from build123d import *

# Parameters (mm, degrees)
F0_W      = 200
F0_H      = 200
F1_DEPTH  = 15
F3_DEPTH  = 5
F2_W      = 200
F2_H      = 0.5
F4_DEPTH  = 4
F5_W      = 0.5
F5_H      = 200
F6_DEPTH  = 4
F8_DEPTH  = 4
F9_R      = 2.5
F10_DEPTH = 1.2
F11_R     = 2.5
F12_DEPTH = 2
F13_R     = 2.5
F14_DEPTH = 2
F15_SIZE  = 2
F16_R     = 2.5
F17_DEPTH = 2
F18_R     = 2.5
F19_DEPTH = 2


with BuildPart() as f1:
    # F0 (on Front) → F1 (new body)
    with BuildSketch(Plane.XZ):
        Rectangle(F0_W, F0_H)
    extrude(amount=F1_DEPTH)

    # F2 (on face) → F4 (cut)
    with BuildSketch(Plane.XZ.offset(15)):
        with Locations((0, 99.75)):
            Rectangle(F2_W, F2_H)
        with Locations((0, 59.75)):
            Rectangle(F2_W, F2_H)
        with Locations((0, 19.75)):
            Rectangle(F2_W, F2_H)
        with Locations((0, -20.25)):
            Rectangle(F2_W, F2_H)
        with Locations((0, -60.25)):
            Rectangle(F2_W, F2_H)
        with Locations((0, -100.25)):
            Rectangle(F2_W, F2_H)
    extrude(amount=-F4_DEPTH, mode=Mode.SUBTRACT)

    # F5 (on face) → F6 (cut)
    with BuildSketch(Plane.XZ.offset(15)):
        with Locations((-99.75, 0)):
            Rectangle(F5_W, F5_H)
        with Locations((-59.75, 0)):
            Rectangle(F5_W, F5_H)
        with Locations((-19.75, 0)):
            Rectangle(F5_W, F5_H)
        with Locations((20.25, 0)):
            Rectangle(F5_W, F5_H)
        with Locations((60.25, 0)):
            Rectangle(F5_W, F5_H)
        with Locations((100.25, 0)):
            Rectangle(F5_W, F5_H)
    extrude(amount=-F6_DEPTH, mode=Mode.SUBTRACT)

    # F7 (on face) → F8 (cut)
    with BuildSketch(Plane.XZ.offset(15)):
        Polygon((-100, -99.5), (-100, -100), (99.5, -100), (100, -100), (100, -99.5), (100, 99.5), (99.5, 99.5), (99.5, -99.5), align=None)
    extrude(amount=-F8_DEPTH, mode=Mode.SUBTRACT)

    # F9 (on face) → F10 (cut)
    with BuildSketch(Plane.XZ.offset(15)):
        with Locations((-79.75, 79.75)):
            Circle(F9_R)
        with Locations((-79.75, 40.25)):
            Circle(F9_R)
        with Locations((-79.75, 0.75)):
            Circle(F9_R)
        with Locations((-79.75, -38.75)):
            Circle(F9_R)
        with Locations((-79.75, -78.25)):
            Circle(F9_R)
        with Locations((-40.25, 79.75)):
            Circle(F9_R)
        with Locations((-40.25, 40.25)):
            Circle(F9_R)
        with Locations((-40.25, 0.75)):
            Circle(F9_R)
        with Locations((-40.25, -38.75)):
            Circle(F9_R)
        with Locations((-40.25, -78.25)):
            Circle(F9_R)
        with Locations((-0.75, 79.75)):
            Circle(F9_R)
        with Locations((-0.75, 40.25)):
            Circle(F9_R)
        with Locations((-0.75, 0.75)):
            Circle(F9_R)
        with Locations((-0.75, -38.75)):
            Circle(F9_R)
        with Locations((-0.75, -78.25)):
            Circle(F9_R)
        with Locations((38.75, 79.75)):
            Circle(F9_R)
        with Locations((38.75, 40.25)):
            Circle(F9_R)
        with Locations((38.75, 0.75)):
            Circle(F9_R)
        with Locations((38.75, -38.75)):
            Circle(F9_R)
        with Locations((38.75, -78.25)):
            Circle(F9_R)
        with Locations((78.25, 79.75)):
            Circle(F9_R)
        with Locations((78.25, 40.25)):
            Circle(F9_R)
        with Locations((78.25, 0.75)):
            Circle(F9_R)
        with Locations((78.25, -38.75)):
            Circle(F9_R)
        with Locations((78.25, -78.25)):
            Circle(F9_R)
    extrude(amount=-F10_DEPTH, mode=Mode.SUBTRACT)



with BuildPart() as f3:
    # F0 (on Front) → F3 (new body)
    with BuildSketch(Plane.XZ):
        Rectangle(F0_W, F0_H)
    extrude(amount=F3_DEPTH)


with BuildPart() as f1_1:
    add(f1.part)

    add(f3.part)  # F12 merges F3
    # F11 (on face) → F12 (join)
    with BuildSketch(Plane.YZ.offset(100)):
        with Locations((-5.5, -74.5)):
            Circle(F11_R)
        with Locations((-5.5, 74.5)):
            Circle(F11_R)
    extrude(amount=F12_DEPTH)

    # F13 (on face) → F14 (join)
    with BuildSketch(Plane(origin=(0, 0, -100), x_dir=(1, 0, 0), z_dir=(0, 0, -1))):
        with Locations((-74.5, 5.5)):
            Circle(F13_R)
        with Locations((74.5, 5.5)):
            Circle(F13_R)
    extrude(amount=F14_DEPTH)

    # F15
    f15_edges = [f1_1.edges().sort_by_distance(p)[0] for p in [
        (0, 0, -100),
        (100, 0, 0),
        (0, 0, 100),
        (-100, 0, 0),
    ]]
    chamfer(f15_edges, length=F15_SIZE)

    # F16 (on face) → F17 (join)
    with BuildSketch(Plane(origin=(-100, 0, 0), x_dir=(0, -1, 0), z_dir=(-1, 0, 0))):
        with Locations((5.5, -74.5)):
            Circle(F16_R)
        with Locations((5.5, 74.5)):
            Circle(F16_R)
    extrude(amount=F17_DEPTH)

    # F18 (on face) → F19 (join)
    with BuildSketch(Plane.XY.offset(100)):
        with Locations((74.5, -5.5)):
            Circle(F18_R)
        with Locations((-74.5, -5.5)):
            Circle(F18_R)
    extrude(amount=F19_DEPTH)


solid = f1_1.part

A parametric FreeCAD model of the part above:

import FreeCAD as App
import Part
import Sketcher

V = App.Vector


def edges_at(feature, points):
    """Names of the edges that pass closest to the given points."""
    edges = feature.Shape.Edges
    near = lambda p: min(range(len(edges)), key=lambda i: edges[i].distToShape(Part.Vertex(*p))[0])
    return sorted({f"Edge{near(p) + 1}" for p in points})


def add_polygon(sketch, points):
    """Adds a closed chain of lines whose ends are joined by coincident constraints."""
    first, n = sketch.GeometryCount, len(points)
    for a, b in zip(points, points[1:] + points[:1]):
        sketch.addGeometry(Part.LineSegment(App.Vector(*a, 0), App.Vector(*b, 0)), False)
    for i in range(n):
        sketch.addConstraint(Sketcher.Constraint("Coincident", first + i, 2, first + (i + 1) % n, 1))

doc = App.newDocument("Part")
params = doc.addObject("Spreadsheet::Sheet", "Params")
for row, (alias, value) in enumerate([
    ("sketch1_width", "200 mm"),
    ("pad1_length", "15 mm"),
    ("sketch2_width", "200 mm"),
    ("sketch2_height", "0.5 mm"),
    ("pocket1_length", "4 mm"),
    ("sketch3_height", "200 mm"),
    ("sketch3_width", "0.5 mm"),
    ("pocket2_length", "4 mm"),
    ("sketch4_width", "200 mm"),
    ("sketch4_height", "199 mm"),
    ("pocket3_length", "4 mm"),
    ("sketch5_diameter", "5 mm"),
    ("pocket4_length", "1.2 mm"),
    ("sketch6_width", "200 mm"),
    ("pad2_length", "5 mm"),
    ("sketch7_diameter", "5 mm"),
    ("pad3_length", "2 mm"),
    ("sketch8_diameter", "5 mm"),
    ("pad4_length", "2 mm"),
    ("chamfer_size", "2 mm"),
    ("sketch9_diameter", "5 mm"),
    ("pad5_length", "2 mm"),
    ("sketch10_diameter", "5 mm"),
    ("pad6_length", "2 mm"),
], start=1):
    params.set(f"A{row}", alias)
    params.set(f"B{row}", "=" + value)
    params.setAlias(f"B{row}", alias)

body = doc.addObject("PartDesign::Body", "Body")

# Sketch on XZ plane
sketch1 = body.newObject("Sketcher::SketchObject", "Sketch")
sketch1.AttachmentSupport = (doc.getObject("XZ_Plane"), [""])
sketch1.MapMode = "FlatFace"
add_polygon(sketch1, [(-100, 100), (-100, -100), (100, -100), (100, 100)])  # lines 0-3
sketch1.addConstraint([
    Sketcher.Constraint("Vertical", 0),
    Sketcher.Constraint("Horizontal", 1),
    Sketcher.Constraint("Vertical", 2),
    Sketcher.Constraint("Horizontal", 3),
    Sketcher.Constraint("Symmetric", 0, 2, 2, 2, -1, 1),
    Sketcher.Constraint("Equal", 3, 0),
    Sketcher.Constraint("DistanceX", 1, 1, 1, 2, 200.0),
])
sketch1.setExpression("Constraints[10]", "Params.sketch1_width")
pad1 = body.newObject("PartDesign::Pad", "Pad")
pad1.Profile = sketch1
pad1.setExpression("Length", "Params.pad1_length")

# Sketch on XZ plane
sketch2 = body.newObject("Sketcher::SketchObject", "Sketch001")
sketch2.AttachmentSupport = (doc.getObject("XZ_Plane"), [""])
sketch2.MapMode = "FlatFace"
sketch2.AttachmentOffset = App.Placement(V(0, 0, 15), App.Rotation())
add_polygon(sketch2, [(-100, 100), (-100, 99.5), (100, 99.5), (100, 100)])  # lines 0-3
add_polygon(sketch2, [(-100, 60), (-100, 59.5), (100, 59.5), (100, 60)])  # lines 4-7
add_polygon(sketch2, [(-100, 20), (-100, 19.5), (100, 19.5), (100, 20)])  # lines 8-11
add_polygon(sketch2, [(-100, -20), (-100, -20.5), (100, -20.5), (100, -20)])  # lines 12-15
add_polygon(sketch2, [(-100, -60), (-100, -60.5), (100, -60.5), (100, -60)])  # lines 16-19
add_polygon(sketch2, [(-100, -100), (-100, -100.5), (100, -100.5), (100, -100)])  # lines 20-23
sketch2.addConstraint([
    Sketcher.Constraint("Vertical", 0),
    Sketcher.Constraint("Horizontal", 1),
    Sketcher.Constraint("Vertical", 2),
    Sketcher.Constraint("Horizontal", 3),
    Sketcher.Constraint("Vertical", 4),
    Sketcher.Constraint("Horizontal", 5),
    Sketcher.Constraint("Vertical", 6),
    Sketcher.Constraint("Horizontal", 7),
    Sketcher.Constraint("Vertical", 8),
    Sketcher.Constraint("Horizontal", 9),
    Sketcher.Constraint("Vertical", 10),
    Sketcher.Constraint("Horizontal", 11),
    Sketcher.Constraint("Vertical", 12),
    Sketcher.Constraint("Horizontal", 13),
    Sketcher.Constraint("Vertical", 14),
    Sketcher.Constraint("Horizontal", 15),
    Sketcher.Constraint("Vertical", 16),
    Sketcher.Constraint("Horizontal", 17),
    Sketcher.Constraint("Vertical", 18),
    Sketcher.Constraint("Horizontal", 19),
    Sketcher.Constraint("Vertical", 20),
    Sketcher.Constraint("Horizontal", 21),
    Sketcher.Constraint("Vertical", 22),
    Sketcher.Constraint("Horizontal", 23),
    Sketcher.Constraint("Symmetric", 11, 2, 14, 2, -1, 1),
    Sketcher.Constraint("Symmetric", 7, 2, 18, 2, -1, 1),
    Sketcher.Constraint("Symmetric", 3, 2, 22, 2, -1, 1),
    Sketcher.Constraint("Vertical", 3, 2, 4, 2),
    Sketcher.Constraint("Vertical", 2, 2, 5, 2),
    Sketcher.Constraint("Vertical", 7, 2, 8, 2),
    Sketcher.Constraint("Vertical", 6, 2, 9, 2),
    Sketcher.Constraint("Vertical", 11, 2, 12, 2),
    Sketcher.Constraint("Vertical", 10, 2, 13, 2),
    Sketcher.Constraint("Vertical", 15, 2, 16, 2),
    Sketcher.Constraint("Vertical", 19, 2, 20, 2),
    Sketcher.Constraint("Equal", 2, 4),
    Sketcher.Constraint("Equal", 6, 8),
    Sketcher.Constraint("Equal", 10, 12),
    Sketcher.Constraint("Equal", 14, 16),
    Sketcher.Constraint("Equal", 18, 20),
    Sketcher.Constraint("DistanceX", 1, 1, 1, 2, 200.0),
    Sketcher.Constraint("DistanceY", 0, 2, 0, 1, 0.5),
    Sketcher.Constraint("DistanceY", -1, 1, 2, 2, 100.0),
    Sketcher.Constraint("DistanceY", -1, 1, 6, 2, 60.0),
    Sketcher.Constraint("DistanceY", -1, 1, 10, 2, 20.0),
])
sketch2.setExpression("Constraints[64]", "Params.sketch2_width")
sketch2.setExpression("Constraints[65]", "Params.sketch2_height")
pocket1 = body.newObject("PartDesign::Pocket", "Pocket")
pocket1.Profile = sketch2
pocket1.setExpression("Length", "Params.pocket1_length")

# Sketch on XZ plane
sketch3 = body.newObject("Sketcher::SketchObject", "Sketch002")
sketch3.AttachmentSupport = (doc.getObject("XZ_Plane"), [""])
sketch3.MapMode = "FlatFace"
sketch3.AttachmentOffset = App.Placement(V(0, 0, 15), App.Rotation())
add_polygon(sketch3, [(-100, 100), (-100, -100), (-99.5, -100), (-99.5, 100)])  # lines 0-3
add_polygon(sketch3, [(-60, 100), (-60, -100), (-59.5, -100), (-59.5, 100)])  # lines 4-7
add_polygon(sketch3, [(-20, 100), (-20, -100), (-19.5, -100), (-19.5, 100)])  # lines 8-11
add_polygon(sketch3, [(20, 100), (20, -100), (20.5, -100), (20.5, 100)])  # lines 12-15
add_polygon(sketch3, [(60, 100), (60, -100), (60.5, -100), (60.5, 100)])  # lines 16-19
add_polygon(sketch3, [(100, 100), (100, -100), (100.5, -100), (100.5, 100)])  # lines 20-23
sketch3.addConstraint([
    Sketcher.Constraint("Vertical", 0),
    Sketcher.Constraint("Horizontal", 1),
    Sketcher.Constraint("Vertical", 2),
    Sketcher.Constraint("Horizontal", 3),
    Sketcher.Constraint("Vertical", 4),
    Sketcher.Constraint("Horizontal", 5),
    Sketcher.Constraint("Vertical", 6),
    Sketcher.Constraint("Horizontal", 7),
    Sketcher.Constraint("Vertical", 8),
    Sketcher.Constraint("Horizontal", 9),
    Sketcher.Constraint("Vertical", 10),
    Sketcher.Constraint("Horizontal", 11),
    Sketcher.Constraint("Vertical", 12),
    Sketcher.Constraint("Horizontal", 13),
    Sketcher.Constraint("Vertical", 14),
    Sketcher.Constraint("Horizontal", 15),
    Sketcher.Constraint("Vertical", 16),
    Sketcher.Constraint("Horizontal", 17),
    Sketcher.Constraint("Vertical", 18),
    Sketcher.Constraint("Horizontal", 19),
    Sketcher.Constraint("Vertical", 20),
    Sketcher.Constraint("Horizontal", 21),
    Sketcher.Constraint("Vertical", 22),
    Sketcher.Constraint("Horizontal", 23),
    Sketcher.Constraint("Symmetric", 11, 2, 12, 2, -1, 1),
    Sketcher.Constraint("Symmetric", 7, 2, 16, 2, -1, 1),
    Sketcher.Constraint("Symmetric", 3, 2, 20, 2, -1, 1),
    Sketcher.Constraint("Horizontal", 1, 2, 4, 2),
    Sketcher.Constraint("Horizontal", 3, 2, 6, 2),
    Sketcher.Constraint("Horizontal", 5, 2, 8, 2),
    Sketcher.Constraint("Horizontal", 7, 2, 10, 2),
    Sketcher.Constraint("Horizontal", 9, 2, 12, 2),
    Sketcher.Constraint("Horizontal", 11, 2, 14, 2),
    Sketcher.Constraint("Horizontal", 15, 2, 18, 2),
    Sketcher.Constraint("Horizontal", 19, 2, 22, 2),
    Sketcher.Constraint("Equal", 3, 5),
    Sketcher.Constraint("Equal", 7, 9),
    Sketcher.Constraint("Equal", 11, 13),
    Sketcher.Constraint("Equal", 15, 17),
    Sketcher.Constraint("Equal", 19, 21),
    Sketcher.Constraint("DistanceY", 0, 2, 0, 1, 200.0),
    Sketcher.Constraint("DistanceX", 1, 1, 1, 2, 0.5),
    Sketcher.Constraint("DistanceX", 0, 2, -1, 1, 100.0),
    Sketcher.Constraint("DistanceX", 4, 2, -1, 1, 60.0),
    Sketcher.Constraint("DistanceX", 8, 2, -1, 1, 20.0),
])
sketch3.setExpression("Constraints[64]", "Params.sketch3_height")
sketch3.setExpression("Constraints[65]", "Params.sketch3_width")
pocket2 = body.newObject("PartDesign::Pocket", "Pocket001")
pocket2.Profile = sketch3
pocket2.setExpression("Length", "Params.pocket2_length")

# Sketch on XZ plane
sketch4 = body.newObject("Sketcher::SketchObject", "Sketch003")
sketch4.AttachmentSupport = (doc.getObject("XZ_Plane"), [""])
sketch4.MapMode = "FlatFace"
sketch4.AttachmentOffset = App.Placement(V(0, 0, 15), App.Rotation())
add_polygon(sketch4, [(-100, -99.5), (-100, -100), (100, -100), (100, 99.5), (99.5, 99.5), (99.5, -99.5)])  # lines 0-5
sketch4.addConstraint([
    Sketcher.Constraint("Vertical", 0),
    Sketcher.Constraint("Horizontal", 1),
    Sketcher.Constraint("Vertical", 2),
    Sketcher.Constraint("Horizontal", 3),
    Sketcher.Constraint("Vertical", 4),
    Sketcher.Constraint("Horizontal", 5),
    Sketcher.Constraint("Symmetric", 2, 2, 5, 2, -1, 1),
    Sketcher.Constraint("Equal", 3, 0),
    Sketcher.Constraint("Equal", 5, 2),
    Sketcher.Constraint("DistanceX", 1, 1, 1, 2, 200.0),
    Sketcher.Constraint("DistanceY", 4, 2, 4, 1, 199.0),
])
sketch4.setExpression("Constraints[15]", "Params.sketch4_width")
sketch4.setExpression("Constraints[16]", "Params.sketch4_height")
pocket3 = body.newObject("PartDesign::Pocket", "Pocket002")
pocket3.Profile = sketch4
pocket3.setExpression("Length", "Params.pocket3_length")

# Sketch on XZ plane
sketch5 = body.newObject("Sketcher::SketchObject", "Sketch004")
sketch5.AttachmentSupport = (doc.getObject("XZ_Plane"), [""])
sketch5.MapMode = "FlatFace"
sketch5.AttachmentOffset = App.Placement(V(0, 0, 15), App.Rotation())
sketch5.addGeometry([
    Part.Circle(V(-79.8, 79.8, 0), V(0, 0, 1), 2.5),  # 0
    Part.Circle(V(-79.8, 40.2, 0), V(0, 0, 1), 2.5),  # 1
    Part.Circle(V(-79.8, 0.8, 0), V(0, 0, 1), 2.5),  # 2
    Part.Circle(V(-79.8, -38.8, 0), V(0, 0, 1), 2.5),  # 3
    Part.Circle(V(-79.8, -78.2, 0), V(0, 0, 1), 2.5),  # 4
    Part.Circle(V(-40.2, 79.8, 0), V(0, 0, 1), 2.5),  # 5
    Part.Circle(V(-40.2, 40.2, 0), V(0, 0, 1), 2.5),  # 6
    Part.Circle(V(-40.2, 0.8, 0), V(0, 0, 1), 2.5),  # 7
    Part.Circle(V(-40.2, -38.8, 0), V(0, 0, 1), 2.5),  # 8
    Part.Circle(V(-40.2, -78.2, 0), V(0, 0, 1), 2.5),  # 9
    Part.Circle(V(-0.8, 79.8, 0), V(0, 0, 1), 2.5),  # 10
    Part.Circle(V(-0.8, 40.2, 0), V(0, 0, 1), 2.5),  # 11
    Part.Circle(V(-0.8, 0.8, 0), V(0, 0, 1), 2.5),  # 12
    Part.Circle(V(-0.8, -38.8, 0), V(0, 0, 1), 2.5),  # 13
    Part.Circle(V(-0.8, -78.2, 0), V(0, 0, 1), 2.5),  # 14
    Part.Circle(V(38.8, 79.8, 0), V(0, 0, 1), 2.5),  # 15
    Part.Circle(V(38.8, 40.2, 0), V(0, 0, 1), 2.5),  # 16
    Part.Circle(V(38.8, 0.8, 0), V(0, 0, 1), 2.5),  # 17
    Part.Circle(V(38.8, -38.8, 0), V(0, 0, 1), 2.5),  # 18
    Part.Circle(V(38.8, -78.2, 0), V(0, 0, 1), 2.5),  # 19
    Part.Circle(V(78.2, 79.8, 0), V(0, 0, 1), 2.5),  # 20
    Part.Circle(V(78.2, 40.2, 0), V(0, 0, 1), 2.5),  # 21
    Part.Circle(V(78.2, 0.8, 0), V(0, 0, 1), 2.5),  # 22
    Part.Circle(V(78.2, -38.8, 0), V(0, 0, 1), 2.5),  # 23
    Part.Circle(V(78.2, -78.2, 0), V(0, 0, 1), 2.5),  # 24
], False)
sketch5.addConstraint([
    Sketcher.Constraint("Equal", 0, 1),
    Sketcher.Constraint("Equal", 1, 2),
    Sketcher.Constraint("Equal", 2, 3),
    Sketcher.Constraint("Equal", 3, 4),
    Sketcher.Constraint("Equal", 4, 5),
    Sketcher.Constraint("Equal", 5, 6),
    Sketcher.Constraint("Equal", 6, 7),
    Sketcher.Constraint("Equal", 7, 8),
    Sketcher.Constraint("Equal", 8, 9),
    Sketcher.Constraint("Equal", 9, 10),
    Sketcher.Constraint("Equal", 10, 11),
    Sketcher.Constraint("Equal", 11, 12),
    Sketcher.Constraint("Equal", 12, 13),
    Sketcher.Constraint("Equal", 13, 14),
    Sketcher.Constraint("Equal", 14, 15),
    Sketcher.Constraint("Equal", 15, 16),
    Sketcher.Constraint("Equal", 16, 17),
    Sketcher.Constraint("Equal", 17, 18),
    Sketcher.Constraint("Equal", 18, 19),
    Sketcher.Constraint("Equal", 19, 20),
    Sketcher.Constraint("Equal", 20, 21),
    Sketcher.Constraint("Equal", 21, 22),
    Sketcher.Constraint("Equal", 22, 23),
    Sketcher.Constraint("Equal", 23, 24),
    Sketcher.Constraint("Horizontal", 0, 3, 5, 3),
    Sketcher.Constraint("Horizontal", 1, 3, 6, 3),
    Sketcher.Constraint("Horizontal", 2, 3, 7, 3),
    Sketcher.Constraint("Horizontal", 3, 3, 8, 3),
    Sketcher.Constraint("Horizontal", 4, 3, 9, 3),
    Sketcher.Constraint("Horizontal", 5, 3, 10, 3),
    Sketcher.Constraint("Horizontal", 6, 3, 11, 3),
    Sketcher.Constraint("Horizontal", 7, 3, 12, 3),
    Sketcher.Constraint("Horizontal", 8, 3, 13, 3),
    Sketcher.Constraint("Horizontal", 9, 3, 14, 3),
    Sketcher.Constraint("Horizontal", 10, 3, 15, 3),
    Sketcher.Constraint("Horizontal", 11, 3, 16, 3),
    Sketcher.Constraint("Horizontal", 12, 3, 17, 3),
    Sketcher.Constraint("Horizontal", 13, 3, 18, 3),
    Sketcher.Constraint("Horizontal", 14, 3, 19, 3),
    Sketcher.Constraint("Horizontal", 15, 3, 20, 3),
    Sketcher.Constraint("Horizontal", 16, 3, 21, 3),
    Sketcher.Constraint("Horizontal", 17, 3, 22, 3),
    Sketcher.Constraint("Horizontal", 18, 3, 23, 3),
    Sketcher.Constraint("Horizontal", 19, 3, 24, 3),
    Sketcher.Constraint("Vertical", 0, 3, 1, 3),
    Sketcher.Constraint("Vertical", 1, 3, 2, 3),
    Sketcher.Constraint("Vertical", 2, 3, 3, 3),
    Sketcher.Constraint("Vertical", 3, 3, 4, 3),
    Sketcher.Constraint("Vertical", 5, 3, 6, 3),
    Sketcher.Constraint("Vertical", 6, 3, 7, 3),
    Sketcher.Constraint("Vertical", 7, 3, 8, 3),
    Sketcher.Constraint("Vertical", 8, 3, 9, 3),
    Sketcher.Constraint("Vertical", 10, 3, 11, 3),
    Sketcher.Constraint("Vertical", 11, 3, 12, 3),
    Sketcher.Constraint("Vertical", 12, 3, 13, 3),
    Sketcher.Constraint("Vertical", 13, 3, 14, 3),
    Sketcher.Constraint("Vertical", 15, 3, 16, 3),
    Sketcher.Constraint("Vertical", 16, 3, 17, 3),
    Sketcher.Constraint("Vertical", 17, 3, 18, 3),
    Sketcher.Constraint("Vertical", 18, 3, 19, 3),
    Sketcher.Constraint("Vertical", 20, 3, 21, 3),
    Sketcher.Constraint("Vertical", 21, 3, 22, 3),
    Sketcher.Constraint("Vertical", 22, 3, 23, 3),
    Sketcher.Constraint("Vertical", 23, 3, 24, 3),
    Sketcher.Constraint("Diameter", 0, 5.0),
    Sketcher.Constraint("DistanceY", 2, 3, 0, 3, 79.0),
    Sketcher.Constraint("DistanceY", 3, 3, 1, 3, 79.0),
    Sketcher.Constraint("DistanceY", 4, 3, 2, 3, 79.0),
    Sketcher.Constraint("DistanceX", 0, 3, 10, 3, 79.0),
    Sketcher.Constraint("DistanceX", 5, 3, 15, 3, 79.0),
    Sketcher.Constraint("DistanceX", 10, 3, 20, 3, 79.0),
    Sketcher.Constraint("DistanceY", 1, 3, 0, 3, 39.5),
    Sketcher.Constraint("DistanceX", 0, 3, 5, 3, 39.5),
    Sketcher.Constraint("DistanceX", 0, 3, -1, 1, 79.75),
    Sketcher.Constraint("DistanceY", -1, 1, 0, 3, 79.75),
])
sketch5.setExpression("Constraints[64]", "Params.sketch5_diameter")
pocket4 = body.newObject("PartDesign::Pocket", "Pocket003")
pocket4.Profile = sketch5
pocket4.setExpression("Length", "Params.pocket4_length")
body2 = doc.addObject("PartDesign::Body", "Body001")

# Sketch on XZ plane
sketch6 = body2.newObject("Sketcher::SketchObject", "Sketch005")
sketch6.AttachmentSupport = (doc.getObject("XZ_Plane001"), [""])
sketch6.MapMode = "FlatFace"
add_polygon(sketch6, [(-100, 100), (-100, -100), (100, -100), (100, 100)])  # lines 0-3
sketch6.addConstraint([
    Sketcher.Constraint("Vertical", 0),
    Sketcher.Constraint("Horizontal", 1),
    Sketcher.Constraint("Vertical", 2),
    Sketcher.Constraint("Horizontal", 3),
    Sketcher.Constraint("Symmetric", 0, 2, 2, 2, -1, 1),
    Sketcher.Constraint("Equal", 3, 0),
    Sketcher.Constraint("DistanceX", 1, 1, 1, 2, 200.0),
])
sketch6.setExpression("Constraints[10]", "Params.sketch6_width")
pad2 = body2.newObject("PartDesign::Pad", "Pad001")
pad2.Profile = sketch6
pad2.setExpression("Length", "Params.pad2_length")
doc.recompute()

boolean = body.newObject("PartDesign::Boolean", "Boolean")
boolean.Type = "Fuse"
boolean.addObjects([body2])

# Sketch on YZ plane
sketch7 = body.newObject("Sketcher::SketchObject", "Sketch006")
sketch7.AttachmentSupport = (doc.getObject("YZ_Plane"), [""])
sketch7.MapMode = "FlatFace"
sketch7.AttachmentOffset = App.Placement(V(0, 0, 100), App.Rotation())
sketch7.addGeometry([
    Part.Circle(V(-5.5, -74.5, 0), V(0, 0, 1), 2.5),
    Part.Circle(V(-5.5, 74.5, 0), V(0, 0, 1), 2.5),
], False)
sketch7.addConstraint([
    Sketcher.Constraint("Equal", 0, 1),
    Sketcher.Constraint("Symmetric", 0, 3, 1, 3, -1),
    Sketcher.Constraint("Diameter", 0, 5.0),
    Sketcher.Constraint("DistanceY", 0, 3, 1, 3, 149.0),
    Sketcher.Constraint("DistanceX", 0, 3, -1, 1, 5.5),
])
sketch7.setExpression("Constraints[2]", "Params.sketch7_diameter")
pad3 = body.newObject("PartDesign::Pad", "Pad002")
pad3.Profile = sketch7
pad3.setExpression("Length", "Params.pad3_length")

# Sketch on XY plane
sketch8 = body.newObject("Sketcher::SketchObject", "Sketch007")
sketch8.AttachmentSupport = (doc.getObject("XY_Plane"), [""])
sketch8.MapMode = "FlatFace"
sketch8.AttachmentOffset = App.Placement(V(0, 0, -100), App.Rotation())
sketch8.addGeometry([
    Part.Circle(V(-74.5, -5.5, 0), V(0, 0, 1), 2.5),
    Part.Circle(V(74.5, -5.5, 0), V(0, 0, 1), 2.5),
], False)
sketch8.addConstraint([
    Sketcher.Constraint("Equal", 0, 1),
    Sketcher.Constraint("Symmetric", 0, 3, 1, 3, -2),
    Sketcher.Constraint("Diameter", 0, 5.0),
    Sketcher.Constraint("DistanceX", 0, 3, 1, 3, 149.0),
    Sketcher.Constraint("DistanceY", 0, 3, -1, 1, 5.5),
])
sketch8.setExpression("Constraints[2]", "Params.sketch8_diameter")
pad4 = body.newObject("PartDesign::Pad", "Pad003")
pad4.Profile = sketch8
pad4.setExpression("Length", "Params.pad4_length")
pad4.Reversed = True
doc.recompute()

chamfer = body.newObject("PartDesign::Chamfer", "Chamfer")
chamfer.Base = (pad4, edges_at(pad4, [
    (0, 0, -100),
    (100, 0, 0),
    (0, 0, 100),
    (-100, 0, 0),
]))
chamfer.setExpression("Size", "Params.chamfer_size")

# Sketch on YZ plane
sketch9 = body.newObject("Sketcher::SketchObject", "Sketch008")
sketch9.AttachmentSupport = (doc.getObject("YZ_Plane"), [""])
sketch9.MapMode = "FlatFace"
sketch9.AttachmentOffset = App.Placement(V(0, 0, -100), App.Rotation())
sketch9.addGeometry([
    Part.Circle(V(-5.5, -74.5, 0), V(0, 0, 1), 2.5),
    Part.Circle(V(-5.5, 74.5, 0), V(0, 0, 1), 2.5),
], False)
sketch9.addConstraint([
    Sketcher.Constraint("Equal", 0, 1),
    Sketcher.Constraint("Symmetric", 0, 3, 1, 3, -1),
    Sketcher.Constraint("Diameter", 0, 5.0),
    Sketcher.Constraint("DistanceY", 0, 3, 1, 3, 149.0),
    Sketcher.Constraint("DistanceX", 0, 3, -1, 1, 5.5),
])
sketch9.setExpression("Constraints[2]", "Params.sketch9_diameter")
pad5 = body.newObject("PartDesign::Pad", "Pad004")
pad5.Profile = sketch9
pad5.setExpression("Length", "Params.pad5_length")
pad5.Reversed = True

# Sketch on XY plane
sketch10 = body.newObject("Sketcher::SketchObject", "Sketch009")
sketch10.AttachmentSupport = (doc.getObject("XY_Plane"), [""])
sketch10.MapMode = "FlatFace"
sketch10.AttachmentOffset = App.Placement(V(0, 0, 100), App.Rotation())
sketch10.addGeometry([
    Part.Circle(V(74.5, -5.5, 0), V(0, 0, 1), 2.5),
    Part.Circle(V(-74.5, -5.5, 0), V(0, 0, 1), 2.5),
], False)
sketch10.addConstraint([
    Sketcher.Constraint("Equal", 0, 1),
    Sketcher.Constraint("Symmetric", 0, 3, 1, 3, -2),
    Sketcher.Constraint("Diameter", 0, 5.0),
    Sketcher.Constraint("DistanceX", 1, 3, 0, 3, 149.0),
    Sketcher.Constraint("DistanceY", 0, 3, -1, 1, 5.5),
])
sketch10.setExpression("Constraints[2]", "Params.sketch10_diameter")
pad6 = body.newObject("PartDesign::Pad", "Pad005")
pad6.Profile = sketch10
pad6.setExpression("Length", "Params.pad6_length")

doc.recompute()
